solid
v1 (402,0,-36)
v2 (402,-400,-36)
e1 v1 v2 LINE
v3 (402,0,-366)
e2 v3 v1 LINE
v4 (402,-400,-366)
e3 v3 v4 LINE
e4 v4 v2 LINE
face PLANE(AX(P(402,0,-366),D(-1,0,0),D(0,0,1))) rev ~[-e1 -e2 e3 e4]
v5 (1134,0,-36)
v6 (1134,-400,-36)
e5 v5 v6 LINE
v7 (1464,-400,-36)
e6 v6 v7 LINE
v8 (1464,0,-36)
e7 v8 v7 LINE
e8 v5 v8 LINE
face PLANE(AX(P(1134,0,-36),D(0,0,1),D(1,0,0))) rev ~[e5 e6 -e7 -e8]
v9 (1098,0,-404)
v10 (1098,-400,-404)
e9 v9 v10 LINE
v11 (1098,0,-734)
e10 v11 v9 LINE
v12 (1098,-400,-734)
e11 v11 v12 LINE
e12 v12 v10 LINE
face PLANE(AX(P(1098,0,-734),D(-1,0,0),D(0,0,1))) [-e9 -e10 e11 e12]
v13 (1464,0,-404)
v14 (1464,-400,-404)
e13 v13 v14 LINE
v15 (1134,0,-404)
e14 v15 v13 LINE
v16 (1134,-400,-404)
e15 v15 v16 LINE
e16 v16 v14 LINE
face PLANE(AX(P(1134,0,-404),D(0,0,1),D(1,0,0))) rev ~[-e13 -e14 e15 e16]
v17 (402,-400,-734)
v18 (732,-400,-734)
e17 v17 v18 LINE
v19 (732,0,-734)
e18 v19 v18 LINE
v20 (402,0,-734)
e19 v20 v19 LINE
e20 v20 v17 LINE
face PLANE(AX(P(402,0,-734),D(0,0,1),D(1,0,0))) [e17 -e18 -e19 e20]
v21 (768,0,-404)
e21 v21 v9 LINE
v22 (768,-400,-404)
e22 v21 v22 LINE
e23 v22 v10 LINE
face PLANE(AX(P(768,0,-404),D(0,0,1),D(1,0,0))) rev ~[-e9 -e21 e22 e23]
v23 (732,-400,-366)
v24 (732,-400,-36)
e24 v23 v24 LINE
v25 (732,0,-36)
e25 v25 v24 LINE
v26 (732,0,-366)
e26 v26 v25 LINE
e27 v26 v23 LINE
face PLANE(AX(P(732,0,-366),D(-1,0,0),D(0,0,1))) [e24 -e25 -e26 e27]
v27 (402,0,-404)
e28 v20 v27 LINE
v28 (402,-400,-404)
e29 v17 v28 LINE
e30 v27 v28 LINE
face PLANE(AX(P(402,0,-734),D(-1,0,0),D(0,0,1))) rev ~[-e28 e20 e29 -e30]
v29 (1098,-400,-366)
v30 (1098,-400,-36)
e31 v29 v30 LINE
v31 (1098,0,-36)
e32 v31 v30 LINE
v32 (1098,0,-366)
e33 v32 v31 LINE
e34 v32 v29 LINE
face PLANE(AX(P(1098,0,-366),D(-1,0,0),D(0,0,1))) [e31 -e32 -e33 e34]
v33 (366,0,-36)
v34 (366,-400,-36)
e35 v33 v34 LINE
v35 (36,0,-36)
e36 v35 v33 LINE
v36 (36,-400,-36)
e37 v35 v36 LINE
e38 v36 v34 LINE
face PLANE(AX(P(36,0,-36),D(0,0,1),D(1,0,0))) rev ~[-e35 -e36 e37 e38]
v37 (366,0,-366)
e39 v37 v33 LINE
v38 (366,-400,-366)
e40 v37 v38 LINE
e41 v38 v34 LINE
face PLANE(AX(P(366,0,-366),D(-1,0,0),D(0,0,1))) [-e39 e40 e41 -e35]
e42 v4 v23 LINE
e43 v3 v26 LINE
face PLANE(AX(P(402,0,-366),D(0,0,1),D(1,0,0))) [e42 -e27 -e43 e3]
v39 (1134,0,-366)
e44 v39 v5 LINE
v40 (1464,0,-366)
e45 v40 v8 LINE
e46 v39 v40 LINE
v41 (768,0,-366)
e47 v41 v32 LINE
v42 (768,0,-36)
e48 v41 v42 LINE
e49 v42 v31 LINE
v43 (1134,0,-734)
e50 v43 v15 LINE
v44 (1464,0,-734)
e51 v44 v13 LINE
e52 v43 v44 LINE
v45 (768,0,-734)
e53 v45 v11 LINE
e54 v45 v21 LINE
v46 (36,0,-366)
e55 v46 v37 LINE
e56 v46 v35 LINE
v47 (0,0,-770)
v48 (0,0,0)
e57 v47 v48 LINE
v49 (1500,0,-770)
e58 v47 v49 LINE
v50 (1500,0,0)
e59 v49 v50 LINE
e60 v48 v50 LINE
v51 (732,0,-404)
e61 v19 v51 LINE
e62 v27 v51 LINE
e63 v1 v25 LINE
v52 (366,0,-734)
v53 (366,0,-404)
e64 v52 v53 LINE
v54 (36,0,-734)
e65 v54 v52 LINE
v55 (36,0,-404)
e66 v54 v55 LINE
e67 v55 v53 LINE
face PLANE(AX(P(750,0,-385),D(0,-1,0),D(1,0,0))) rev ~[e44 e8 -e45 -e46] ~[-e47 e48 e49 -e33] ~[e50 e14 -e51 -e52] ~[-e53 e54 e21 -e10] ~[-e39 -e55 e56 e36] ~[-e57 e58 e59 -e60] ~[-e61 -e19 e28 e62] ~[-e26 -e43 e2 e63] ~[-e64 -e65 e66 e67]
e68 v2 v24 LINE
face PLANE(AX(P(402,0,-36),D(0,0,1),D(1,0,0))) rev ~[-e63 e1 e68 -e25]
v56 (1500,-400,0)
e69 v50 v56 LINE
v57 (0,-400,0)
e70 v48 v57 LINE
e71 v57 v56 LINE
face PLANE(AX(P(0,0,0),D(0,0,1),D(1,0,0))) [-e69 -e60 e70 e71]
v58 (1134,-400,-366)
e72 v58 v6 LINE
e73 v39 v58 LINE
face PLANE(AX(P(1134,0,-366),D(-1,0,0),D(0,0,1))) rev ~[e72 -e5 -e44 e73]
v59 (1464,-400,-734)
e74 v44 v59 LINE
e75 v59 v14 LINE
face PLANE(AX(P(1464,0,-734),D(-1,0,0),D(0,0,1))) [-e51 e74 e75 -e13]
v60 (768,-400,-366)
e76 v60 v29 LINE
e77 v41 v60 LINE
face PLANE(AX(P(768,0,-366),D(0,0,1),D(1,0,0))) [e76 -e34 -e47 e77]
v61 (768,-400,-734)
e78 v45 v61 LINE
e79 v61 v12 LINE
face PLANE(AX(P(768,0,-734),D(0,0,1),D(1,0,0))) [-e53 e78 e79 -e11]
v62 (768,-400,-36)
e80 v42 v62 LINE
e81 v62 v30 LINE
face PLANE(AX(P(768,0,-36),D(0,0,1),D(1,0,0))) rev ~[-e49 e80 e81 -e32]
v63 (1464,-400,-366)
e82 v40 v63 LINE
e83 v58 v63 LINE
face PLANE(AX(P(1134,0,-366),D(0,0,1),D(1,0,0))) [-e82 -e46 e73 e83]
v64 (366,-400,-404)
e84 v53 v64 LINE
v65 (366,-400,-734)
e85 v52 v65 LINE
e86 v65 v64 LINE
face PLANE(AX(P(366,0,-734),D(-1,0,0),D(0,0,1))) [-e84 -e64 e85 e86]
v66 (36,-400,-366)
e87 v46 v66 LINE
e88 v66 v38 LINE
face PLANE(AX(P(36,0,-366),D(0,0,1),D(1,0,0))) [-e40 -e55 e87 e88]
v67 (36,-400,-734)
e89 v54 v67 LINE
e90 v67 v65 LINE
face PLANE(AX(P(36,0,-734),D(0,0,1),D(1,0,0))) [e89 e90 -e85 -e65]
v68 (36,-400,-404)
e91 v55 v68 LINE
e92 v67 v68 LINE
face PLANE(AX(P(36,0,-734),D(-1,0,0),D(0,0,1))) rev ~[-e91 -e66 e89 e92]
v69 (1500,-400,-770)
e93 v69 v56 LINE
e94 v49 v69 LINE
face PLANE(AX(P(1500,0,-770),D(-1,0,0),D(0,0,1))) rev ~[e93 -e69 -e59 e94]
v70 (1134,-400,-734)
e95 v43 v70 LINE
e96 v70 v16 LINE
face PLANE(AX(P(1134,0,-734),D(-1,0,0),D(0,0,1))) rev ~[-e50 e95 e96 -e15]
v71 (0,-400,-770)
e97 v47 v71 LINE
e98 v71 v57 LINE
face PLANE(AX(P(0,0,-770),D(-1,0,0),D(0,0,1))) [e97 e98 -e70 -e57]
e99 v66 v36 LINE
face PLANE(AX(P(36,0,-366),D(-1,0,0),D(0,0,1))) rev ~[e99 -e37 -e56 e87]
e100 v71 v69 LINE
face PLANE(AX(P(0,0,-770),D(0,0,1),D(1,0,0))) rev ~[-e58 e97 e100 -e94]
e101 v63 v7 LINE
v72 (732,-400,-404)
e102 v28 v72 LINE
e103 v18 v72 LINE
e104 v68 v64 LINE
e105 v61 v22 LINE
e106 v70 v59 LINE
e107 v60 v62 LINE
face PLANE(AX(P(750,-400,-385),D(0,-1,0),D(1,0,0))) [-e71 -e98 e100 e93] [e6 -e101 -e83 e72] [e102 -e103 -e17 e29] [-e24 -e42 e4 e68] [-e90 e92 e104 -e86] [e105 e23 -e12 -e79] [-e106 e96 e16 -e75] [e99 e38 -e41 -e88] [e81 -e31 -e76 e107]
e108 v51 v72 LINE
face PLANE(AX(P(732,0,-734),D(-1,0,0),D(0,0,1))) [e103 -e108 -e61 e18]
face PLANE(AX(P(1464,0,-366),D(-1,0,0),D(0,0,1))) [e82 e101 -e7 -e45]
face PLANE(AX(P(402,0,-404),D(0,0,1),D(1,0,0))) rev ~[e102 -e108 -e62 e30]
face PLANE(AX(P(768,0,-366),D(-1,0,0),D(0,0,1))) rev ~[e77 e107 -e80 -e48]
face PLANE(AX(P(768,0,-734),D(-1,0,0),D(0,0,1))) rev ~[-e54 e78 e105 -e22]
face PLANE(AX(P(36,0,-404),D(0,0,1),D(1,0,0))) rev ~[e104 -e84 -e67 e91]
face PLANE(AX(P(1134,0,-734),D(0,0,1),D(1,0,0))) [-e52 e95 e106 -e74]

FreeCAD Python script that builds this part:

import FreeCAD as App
import Part
import Sketcher

V = App.Vector
Q = App.Units.Quantity


def add_polygon(sketch, points):
    """Adds a closed chain of lines whose ends are joined by coincident constraints."""
    first, n = sketch.GeometryCount, len(points)
    for a, b in zip(points, points[1:] + points[:1]):
        sketch.addGeometry(Part.LineSegment(App.Vector(*a, 0), App.Vector(*b, 0)), False)
    for i in range(n):
        sketch.addConstraint(Sketcher.Constraint("Coincident", first + i, 2, first + (i + 1) % n, 1))

doc = App.newDocument("Part")
params = doc.addObject("Spreadsheet::Sheet", "Params")
for row, (alias, value) in enumerate([
    ("sketch1_width", "1500 mm"),
    ("sketch1_width2", "330 mm"),
    ("sketch1_height", "770 mm"),
    ("pad1_length", "400 mm"),
], start=1):
    params.set(f"A{row}", alias)
    params.set(f"B{row}", "=" + value)
    params.setAlias(f"B{row}", alias)

body = doc.addObject("PartDesign::Body", "Body")

# Sketch on XZ plane
sketch1 = body.newObject("Sketcher::SketchObject", "Sketch")
sketch1.AttachmentSupport = (doc.getObject("XZ_Plane"), [""])
sketch1.MapMode = "FlatFace"
add_polygon(sketch1, [(0, 0), (0, -770), (1500, -770), (1500, 0)])  # lines 0-3
add_polygon(sketch1, [(366, -734), (36, -734), (36, -404), (366, -404)])  # lines 4-7
add_polygon(sketch1, [(732, -734), (402, -734), (402, -404), (732, -404)])  # lines 8-11
add_polygon(sketch1, [(1098, -734), (768, -734), (768, -404), (1098, -404)])  # lines 12-15
add_polygon(sketch1, [(1464, -734), (1134, -734), (1134, -404), (1464, -404)])  # lines 16-19
add_polygon(sketch1, [(366, -366), (36, -366), (36, -36), (366, -36)])  # lines 20-23
add_polygon(sketch1, [(732, -366), (402, -366), (402, -36), (732, -36)])  # lines 24-27
add_polygon(sketch1, [(1098, -366), (768, -366), (768, -36), (1098, -36)])  # lines 28-31
add_polygon(sketch1, [(1464, -366), (1134, -366), (1134, -36), (1464, -36)])  # lines 32-35
sketch1.addConstraint([
    Sketcher.Constraint("Vertical", 0),
    Sketcher.Constraint("Horizontal", 1),
    Sketcher.Constraint("Vertical", 2),
    Sketcher.Constraint("Horizontal", 3),
    Sketcher.Constraint("Horizontal", 4),
    Sketcher.Constraint("Vertical", 5),
    Sketcher.Constraint("Horizontal", 6),
    Sketcher.Constraint("Vertical", 7),
    Sketcher.Constraint("Horizontal", 8),
    Sketcher.Constraint("Vertical", 9),
    Sketcher.Constraint("Horizontal", 10),
    Sketcher.Constraint("Vertical", 11),
    Sketcher.Constraint("Horizontal", 12),
    Sketcher.Constraint("Vertical", 13),
    Sketcher.Constraint("Horizontal", 14),
    Sketcher.Constraint("Vertical", 15),
    Sketcher.Constraint("Horizontal", 16),
    Sketcher.Constraint("Vertical", 17),
    Sketcher.Constraint("Horizontal", 18),
    Sketcher.Constraint("Vertical", 19),
    Sketcher.Constraint("Horizontal", 20),
    Sketcher.Constraint("Vertical", 21),
    Sketcher.Constraint("Horizontal", 22),
    Sketcher.Constraint("Vertical", 23),
    Sketcher.Constraint("Horizontal", 24),
    Sketcher.Constraint("Vertical", 25),
    Sketcher.Constraint("Horizontal", 26),
    Sketcher.Constraint("Vertical", 27),
    Sketcher.Constraint("Horizontal", 28),
    Sketcher.Constraint("Vertical", 29),
    Sketcher.Constraint("Horizontal", 30),
    Sketcher.Constraint("Vertical", 31),
    Sketcher.Constraint("Horizontal", 32),
    Sketcher.Constraint("Vertical", 33),
    Sketcher.Constraint("Horizontal", 34),
    Sketcher.Constraint("Vertical", 35),
    Sketcher.Constraint("Coincident", 3, 2, -1, 1),
    Sketcher.Constraint("Horizontal", 7, 2, 8, 2),
    Sketcher.Constraint("Horizontal", 6, 2, 9, 2),
    Sketcher.Constraint("Horizontal", 11, 2, 12, 2),
    Sketcher.Constraint("Horizontal", 10, 2, 13, 2),
    Sketcher.Constraint("Horizontal", 15, 2, 16, 2),
    Sketcher.Constraint("Horizontal", 14, 2, 17, 2),
    Sketcher.Constraint("Horizontal", 23, 2, 24, 2),
    Sketcher.Constraint("Horizontal", 22, 2, 25, 2),
    Sketcher.Constraint("Horizontal", 27, 2, 28, 2),
    Sketcher.Constraint("Horizontal", 26, 2, 29, 2),
    Sketcher.Constraint("Horizontal", 31, 2, 32, 2),
    Sketcher.Constraint("Horizontal", 30, 2, 33, 2),
    Sketcher.Constraint("Vertical", 5, 2, 20, 2),
    Sketcher.Constraint("Vertical", 7, 2, 22, 2),
    Sketcher.Constraint("Vertical", 9, 2, 24, 2),
    Sketcher.Constraint("Vertical", 11, 2, 26, 2),
    Sketcher.Constraint("Vertical", 13, 2, 28, 2),
    Sketcher.Constraint("Vertical", 15, 2, 30, 2),
    Sketcher.Constraint("Vertical", 17, 2, 32, 2),
    Sketcher.Constraint("Vertical", 19, 2, 34, 2),
    Sketcher.Constraint("Equal", 6, 8),
    Sketcher.Constraint("Equal", 10, 12),
    Sketcher.Constraint("Equal", 14, 16),
    Sketcher.Constraint("Equal", 34, 5),
    Sketcher.Constraint("Equal", 19, 21),
    Sketcher.Constraint("DistanceX", 1, 1, 1, 2, Q("1500 mm")),
    Sketcher.Constraint("DistanceX", 4, 2, 4, 1, Q("330 mm")),
    Sketcher.Constraint("DistanceY", 0, 2, 0, 1, Q("770 mm")),
    Sketcher.Constraint("DistanceX", -1, 1, 4, 2, Q("36 mm")),
    Sketcher.Constraint("DistanceY", 4, 2, -1, 1, Q("734 mm")),
    Sketcher.Constraint("DistanceX", -1, 1, 8, 2, Q("402 mm")),
    Sketcher.Constraint("DistanceX", -1, 1, 12, 2, Q("768 mm")),
    Sketcher.Constraint("DistanceX", -1, 1, 16, 2, Q("1134 mm")),
    Sketcher.Constraint("DistanceY", 20, 2, -1, 1, Q("366 mm")),
])
sketch1.setExpression("Constraints[98]", "Params.sketch1_width")
sketch1.setExpression("Constraints[99]", "Params.sketch1_width2")
sketch1.setExpression("Constraints[100]", "Params.sketch1_height")
pad1 = body.newObject("PartDesign::Pad", "Pad")
pad1.Profile = sketch1
pad1.setExpression("Length", "Params.pad1_length")

doc.recompute()
